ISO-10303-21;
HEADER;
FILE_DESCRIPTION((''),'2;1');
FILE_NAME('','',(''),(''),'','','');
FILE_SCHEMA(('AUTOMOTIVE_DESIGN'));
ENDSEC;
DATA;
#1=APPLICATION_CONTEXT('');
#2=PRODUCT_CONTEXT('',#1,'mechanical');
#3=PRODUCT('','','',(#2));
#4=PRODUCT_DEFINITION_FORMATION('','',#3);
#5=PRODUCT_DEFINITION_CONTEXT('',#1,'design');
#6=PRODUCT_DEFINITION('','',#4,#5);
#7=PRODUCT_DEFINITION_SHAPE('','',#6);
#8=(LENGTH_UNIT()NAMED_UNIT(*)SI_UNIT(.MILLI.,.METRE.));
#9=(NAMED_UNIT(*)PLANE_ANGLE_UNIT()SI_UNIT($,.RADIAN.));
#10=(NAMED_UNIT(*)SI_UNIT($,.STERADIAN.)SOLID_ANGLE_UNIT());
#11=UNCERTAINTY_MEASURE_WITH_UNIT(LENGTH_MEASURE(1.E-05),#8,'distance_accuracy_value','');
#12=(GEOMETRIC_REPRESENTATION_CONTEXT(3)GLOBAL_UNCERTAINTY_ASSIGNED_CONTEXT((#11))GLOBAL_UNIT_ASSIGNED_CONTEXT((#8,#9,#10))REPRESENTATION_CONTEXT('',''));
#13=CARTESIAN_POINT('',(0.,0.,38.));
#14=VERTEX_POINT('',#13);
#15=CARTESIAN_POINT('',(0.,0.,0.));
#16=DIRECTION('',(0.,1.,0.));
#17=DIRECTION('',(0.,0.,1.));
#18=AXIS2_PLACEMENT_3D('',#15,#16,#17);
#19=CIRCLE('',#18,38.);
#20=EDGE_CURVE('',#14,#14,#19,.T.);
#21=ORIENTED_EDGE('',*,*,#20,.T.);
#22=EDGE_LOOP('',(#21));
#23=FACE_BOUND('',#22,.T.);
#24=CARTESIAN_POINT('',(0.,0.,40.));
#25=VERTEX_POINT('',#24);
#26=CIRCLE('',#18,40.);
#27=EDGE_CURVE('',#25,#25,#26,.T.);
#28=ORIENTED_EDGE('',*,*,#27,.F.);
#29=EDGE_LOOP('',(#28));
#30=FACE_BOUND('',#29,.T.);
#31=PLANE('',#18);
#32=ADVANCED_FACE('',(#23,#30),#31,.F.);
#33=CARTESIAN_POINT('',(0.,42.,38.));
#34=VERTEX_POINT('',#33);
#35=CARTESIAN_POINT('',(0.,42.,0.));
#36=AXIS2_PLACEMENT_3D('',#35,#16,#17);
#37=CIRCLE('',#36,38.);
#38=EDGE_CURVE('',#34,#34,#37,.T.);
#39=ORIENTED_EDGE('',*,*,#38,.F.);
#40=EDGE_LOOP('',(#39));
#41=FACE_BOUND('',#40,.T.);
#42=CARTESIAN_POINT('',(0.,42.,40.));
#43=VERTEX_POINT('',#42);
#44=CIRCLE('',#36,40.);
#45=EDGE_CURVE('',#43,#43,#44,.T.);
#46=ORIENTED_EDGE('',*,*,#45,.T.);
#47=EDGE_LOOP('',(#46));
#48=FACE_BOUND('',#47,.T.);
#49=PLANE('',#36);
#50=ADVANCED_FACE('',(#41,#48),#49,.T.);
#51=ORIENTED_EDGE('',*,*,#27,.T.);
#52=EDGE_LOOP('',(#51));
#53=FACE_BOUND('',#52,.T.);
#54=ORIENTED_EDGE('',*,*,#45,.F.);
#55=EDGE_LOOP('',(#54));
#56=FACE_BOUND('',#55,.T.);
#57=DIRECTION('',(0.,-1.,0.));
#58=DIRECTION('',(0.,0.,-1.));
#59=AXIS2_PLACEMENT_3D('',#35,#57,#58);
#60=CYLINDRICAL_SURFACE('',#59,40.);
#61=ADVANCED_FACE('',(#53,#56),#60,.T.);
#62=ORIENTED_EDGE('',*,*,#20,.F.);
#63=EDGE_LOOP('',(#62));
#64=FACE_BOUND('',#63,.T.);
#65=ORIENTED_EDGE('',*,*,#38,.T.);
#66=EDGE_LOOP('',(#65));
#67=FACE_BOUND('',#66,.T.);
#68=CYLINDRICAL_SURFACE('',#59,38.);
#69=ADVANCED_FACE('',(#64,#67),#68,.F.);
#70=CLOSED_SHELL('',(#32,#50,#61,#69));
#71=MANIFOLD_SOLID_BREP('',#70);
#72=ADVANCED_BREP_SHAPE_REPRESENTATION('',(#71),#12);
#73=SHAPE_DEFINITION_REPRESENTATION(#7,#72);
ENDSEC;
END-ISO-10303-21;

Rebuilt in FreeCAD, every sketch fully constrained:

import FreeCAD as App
import Part
import Sketcher

doc = App.newDocument("Part")
body = doc.addObject("PartDesign::Body", "Body")

sketch1 = body.newObject("Sketcher::SketchObject", "Sketch")
sketch1.AttachmentSupport = (doc.getObject("XZ_Plane"), [""])
sketch1.MapMode = "FlatFace"
sketch1.addGeometry(Part.Circle(App.Vector(0, 0, 0), App.Vector(0, 0, 1), 40), False)
sketch1.addGeometry(Part.Circle(App.Vector(0, 0, 0), App.Vector(0, 0, 1), 38), False)
sketch1.addConstraint(Sketcher.Constraint("Coincident", 0, 3, -1, 1))
sketch1.addConstraint(Sketcher.Constraint("Coincident", 1, 3, -1, 1))
sketch1.addConstraint(Sketcher.Constraint("Diameter", 0, 80.0))
sketch1.addConstraint(Sketcher.Constraint("Diameter", 1, 76.0))
pad1 = body.newObject("PartDesign::Pad", "Pad")
pad1.Profile = sketch1
pad1.Length = 42
pad1.Reversed = True

doc.recompute()
